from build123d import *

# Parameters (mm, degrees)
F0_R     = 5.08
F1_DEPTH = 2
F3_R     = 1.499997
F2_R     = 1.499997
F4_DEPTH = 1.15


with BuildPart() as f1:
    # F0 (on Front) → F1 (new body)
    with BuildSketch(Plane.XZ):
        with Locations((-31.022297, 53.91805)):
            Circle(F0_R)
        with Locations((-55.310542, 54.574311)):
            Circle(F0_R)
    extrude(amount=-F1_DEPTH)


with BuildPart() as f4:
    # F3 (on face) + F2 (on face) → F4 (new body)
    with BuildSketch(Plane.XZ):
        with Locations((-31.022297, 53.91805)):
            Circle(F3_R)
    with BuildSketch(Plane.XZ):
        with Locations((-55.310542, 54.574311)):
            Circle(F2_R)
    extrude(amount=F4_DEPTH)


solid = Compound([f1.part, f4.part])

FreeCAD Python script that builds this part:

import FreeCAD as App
import Part
import Sketcher
from FreeCAD import Vector
Q = App.Units.Quantity

doc = App.newDocument("Part")
body = doc.addObject("PartDesign::Body", "Body")
body.AllowCompound = True

# Sketch on XZ plane
sketch1 = body.newObject("Sketcher::SketchObject", "Sketch")
sketch1.AttachmentSupport = (doc.getObject("XZ_Plane"), [""])
sketch1.MapMode = "FlatFace"
sketch1.addGeometry([
    Part.Circle(Vector(-31, 54, 0), Vector(0, 0, 1), 5),
    Part.Circle(Vector(-55, 55, 0), Vector(0, 0, 1), 5),
], False)
sketch1.addConstraint([
    Sketcher.Constraint("Equal", 0, 1),
    Sketcher.Constraint("Diameter", 0, Q("10.16 mm")),
    Sketcher.Constraint("DistanceY", -1, 1, 0, 3, Q("53.91805 mm")),
    Sketcher.Constraint("DistanceX", 1, 3, -1, 1, Q("55.310542 mm")),
    Sketcher.Constraint("DistanceY", -1, 1, 1, 3, Q("54.574311 mm")),
    Sketcher.Constraint("DistanceX", 0, 3, -1, 1, Q("31.022297 mm")),
])
pad1 = body.newObject("PartDesign::Pad", "Pad")
pad1.Profile = sketch1
pad1.Length = 2
pad1.Reversed = True
body2 = doc.addObject("PartDesign::Body", "Body001")
body2.AllowCompound = True

# Sketch on XZ plane
sketch2 = body2.newObject("Sketcher::SketchObject", "Sketch001")
sketch2.AttachmentSupport = (doc.getObject("XZ_Plane001"), [""])
sketch2.MapMode = "FlatFace"
sketch2.addGeometry([
    Part.Circle(Vector(-31, 53.9, 0), Vector(0, 0, 1), 1.5),
    Part.Circle(Vector(-55.3, 54.6, 0), Vector(0, 0, 1), 1.5),
], False)
sketch2.addConstraint([
    Sketcher.Constraint("Equal", 0, 1),
    Sketcher.Constraint("Diameter", 0, Q("2.999994 mm")),
    Sketcher.Constraint("DistanceY", -1, 1, 0, 3, Q("53.91805 mm")),
    Sketcher.Constraint("DistanceX", 1, 3, -1, 1, Q("55.310542 mm")),
    Sketcher.Constraint("DistanceY", -1, 1, 1, 3, Q("54.574311 mm")),
    Sketcher.Constraint("DistanceX", 0, 3, -1, 1, Q("31.022297 mm")),
])
pad2 = body2.newObject("PartDesign::Pad", "Pad001")
pad2.Profile = sketch2
pad2.Length = 1.15

doc.recompute()
